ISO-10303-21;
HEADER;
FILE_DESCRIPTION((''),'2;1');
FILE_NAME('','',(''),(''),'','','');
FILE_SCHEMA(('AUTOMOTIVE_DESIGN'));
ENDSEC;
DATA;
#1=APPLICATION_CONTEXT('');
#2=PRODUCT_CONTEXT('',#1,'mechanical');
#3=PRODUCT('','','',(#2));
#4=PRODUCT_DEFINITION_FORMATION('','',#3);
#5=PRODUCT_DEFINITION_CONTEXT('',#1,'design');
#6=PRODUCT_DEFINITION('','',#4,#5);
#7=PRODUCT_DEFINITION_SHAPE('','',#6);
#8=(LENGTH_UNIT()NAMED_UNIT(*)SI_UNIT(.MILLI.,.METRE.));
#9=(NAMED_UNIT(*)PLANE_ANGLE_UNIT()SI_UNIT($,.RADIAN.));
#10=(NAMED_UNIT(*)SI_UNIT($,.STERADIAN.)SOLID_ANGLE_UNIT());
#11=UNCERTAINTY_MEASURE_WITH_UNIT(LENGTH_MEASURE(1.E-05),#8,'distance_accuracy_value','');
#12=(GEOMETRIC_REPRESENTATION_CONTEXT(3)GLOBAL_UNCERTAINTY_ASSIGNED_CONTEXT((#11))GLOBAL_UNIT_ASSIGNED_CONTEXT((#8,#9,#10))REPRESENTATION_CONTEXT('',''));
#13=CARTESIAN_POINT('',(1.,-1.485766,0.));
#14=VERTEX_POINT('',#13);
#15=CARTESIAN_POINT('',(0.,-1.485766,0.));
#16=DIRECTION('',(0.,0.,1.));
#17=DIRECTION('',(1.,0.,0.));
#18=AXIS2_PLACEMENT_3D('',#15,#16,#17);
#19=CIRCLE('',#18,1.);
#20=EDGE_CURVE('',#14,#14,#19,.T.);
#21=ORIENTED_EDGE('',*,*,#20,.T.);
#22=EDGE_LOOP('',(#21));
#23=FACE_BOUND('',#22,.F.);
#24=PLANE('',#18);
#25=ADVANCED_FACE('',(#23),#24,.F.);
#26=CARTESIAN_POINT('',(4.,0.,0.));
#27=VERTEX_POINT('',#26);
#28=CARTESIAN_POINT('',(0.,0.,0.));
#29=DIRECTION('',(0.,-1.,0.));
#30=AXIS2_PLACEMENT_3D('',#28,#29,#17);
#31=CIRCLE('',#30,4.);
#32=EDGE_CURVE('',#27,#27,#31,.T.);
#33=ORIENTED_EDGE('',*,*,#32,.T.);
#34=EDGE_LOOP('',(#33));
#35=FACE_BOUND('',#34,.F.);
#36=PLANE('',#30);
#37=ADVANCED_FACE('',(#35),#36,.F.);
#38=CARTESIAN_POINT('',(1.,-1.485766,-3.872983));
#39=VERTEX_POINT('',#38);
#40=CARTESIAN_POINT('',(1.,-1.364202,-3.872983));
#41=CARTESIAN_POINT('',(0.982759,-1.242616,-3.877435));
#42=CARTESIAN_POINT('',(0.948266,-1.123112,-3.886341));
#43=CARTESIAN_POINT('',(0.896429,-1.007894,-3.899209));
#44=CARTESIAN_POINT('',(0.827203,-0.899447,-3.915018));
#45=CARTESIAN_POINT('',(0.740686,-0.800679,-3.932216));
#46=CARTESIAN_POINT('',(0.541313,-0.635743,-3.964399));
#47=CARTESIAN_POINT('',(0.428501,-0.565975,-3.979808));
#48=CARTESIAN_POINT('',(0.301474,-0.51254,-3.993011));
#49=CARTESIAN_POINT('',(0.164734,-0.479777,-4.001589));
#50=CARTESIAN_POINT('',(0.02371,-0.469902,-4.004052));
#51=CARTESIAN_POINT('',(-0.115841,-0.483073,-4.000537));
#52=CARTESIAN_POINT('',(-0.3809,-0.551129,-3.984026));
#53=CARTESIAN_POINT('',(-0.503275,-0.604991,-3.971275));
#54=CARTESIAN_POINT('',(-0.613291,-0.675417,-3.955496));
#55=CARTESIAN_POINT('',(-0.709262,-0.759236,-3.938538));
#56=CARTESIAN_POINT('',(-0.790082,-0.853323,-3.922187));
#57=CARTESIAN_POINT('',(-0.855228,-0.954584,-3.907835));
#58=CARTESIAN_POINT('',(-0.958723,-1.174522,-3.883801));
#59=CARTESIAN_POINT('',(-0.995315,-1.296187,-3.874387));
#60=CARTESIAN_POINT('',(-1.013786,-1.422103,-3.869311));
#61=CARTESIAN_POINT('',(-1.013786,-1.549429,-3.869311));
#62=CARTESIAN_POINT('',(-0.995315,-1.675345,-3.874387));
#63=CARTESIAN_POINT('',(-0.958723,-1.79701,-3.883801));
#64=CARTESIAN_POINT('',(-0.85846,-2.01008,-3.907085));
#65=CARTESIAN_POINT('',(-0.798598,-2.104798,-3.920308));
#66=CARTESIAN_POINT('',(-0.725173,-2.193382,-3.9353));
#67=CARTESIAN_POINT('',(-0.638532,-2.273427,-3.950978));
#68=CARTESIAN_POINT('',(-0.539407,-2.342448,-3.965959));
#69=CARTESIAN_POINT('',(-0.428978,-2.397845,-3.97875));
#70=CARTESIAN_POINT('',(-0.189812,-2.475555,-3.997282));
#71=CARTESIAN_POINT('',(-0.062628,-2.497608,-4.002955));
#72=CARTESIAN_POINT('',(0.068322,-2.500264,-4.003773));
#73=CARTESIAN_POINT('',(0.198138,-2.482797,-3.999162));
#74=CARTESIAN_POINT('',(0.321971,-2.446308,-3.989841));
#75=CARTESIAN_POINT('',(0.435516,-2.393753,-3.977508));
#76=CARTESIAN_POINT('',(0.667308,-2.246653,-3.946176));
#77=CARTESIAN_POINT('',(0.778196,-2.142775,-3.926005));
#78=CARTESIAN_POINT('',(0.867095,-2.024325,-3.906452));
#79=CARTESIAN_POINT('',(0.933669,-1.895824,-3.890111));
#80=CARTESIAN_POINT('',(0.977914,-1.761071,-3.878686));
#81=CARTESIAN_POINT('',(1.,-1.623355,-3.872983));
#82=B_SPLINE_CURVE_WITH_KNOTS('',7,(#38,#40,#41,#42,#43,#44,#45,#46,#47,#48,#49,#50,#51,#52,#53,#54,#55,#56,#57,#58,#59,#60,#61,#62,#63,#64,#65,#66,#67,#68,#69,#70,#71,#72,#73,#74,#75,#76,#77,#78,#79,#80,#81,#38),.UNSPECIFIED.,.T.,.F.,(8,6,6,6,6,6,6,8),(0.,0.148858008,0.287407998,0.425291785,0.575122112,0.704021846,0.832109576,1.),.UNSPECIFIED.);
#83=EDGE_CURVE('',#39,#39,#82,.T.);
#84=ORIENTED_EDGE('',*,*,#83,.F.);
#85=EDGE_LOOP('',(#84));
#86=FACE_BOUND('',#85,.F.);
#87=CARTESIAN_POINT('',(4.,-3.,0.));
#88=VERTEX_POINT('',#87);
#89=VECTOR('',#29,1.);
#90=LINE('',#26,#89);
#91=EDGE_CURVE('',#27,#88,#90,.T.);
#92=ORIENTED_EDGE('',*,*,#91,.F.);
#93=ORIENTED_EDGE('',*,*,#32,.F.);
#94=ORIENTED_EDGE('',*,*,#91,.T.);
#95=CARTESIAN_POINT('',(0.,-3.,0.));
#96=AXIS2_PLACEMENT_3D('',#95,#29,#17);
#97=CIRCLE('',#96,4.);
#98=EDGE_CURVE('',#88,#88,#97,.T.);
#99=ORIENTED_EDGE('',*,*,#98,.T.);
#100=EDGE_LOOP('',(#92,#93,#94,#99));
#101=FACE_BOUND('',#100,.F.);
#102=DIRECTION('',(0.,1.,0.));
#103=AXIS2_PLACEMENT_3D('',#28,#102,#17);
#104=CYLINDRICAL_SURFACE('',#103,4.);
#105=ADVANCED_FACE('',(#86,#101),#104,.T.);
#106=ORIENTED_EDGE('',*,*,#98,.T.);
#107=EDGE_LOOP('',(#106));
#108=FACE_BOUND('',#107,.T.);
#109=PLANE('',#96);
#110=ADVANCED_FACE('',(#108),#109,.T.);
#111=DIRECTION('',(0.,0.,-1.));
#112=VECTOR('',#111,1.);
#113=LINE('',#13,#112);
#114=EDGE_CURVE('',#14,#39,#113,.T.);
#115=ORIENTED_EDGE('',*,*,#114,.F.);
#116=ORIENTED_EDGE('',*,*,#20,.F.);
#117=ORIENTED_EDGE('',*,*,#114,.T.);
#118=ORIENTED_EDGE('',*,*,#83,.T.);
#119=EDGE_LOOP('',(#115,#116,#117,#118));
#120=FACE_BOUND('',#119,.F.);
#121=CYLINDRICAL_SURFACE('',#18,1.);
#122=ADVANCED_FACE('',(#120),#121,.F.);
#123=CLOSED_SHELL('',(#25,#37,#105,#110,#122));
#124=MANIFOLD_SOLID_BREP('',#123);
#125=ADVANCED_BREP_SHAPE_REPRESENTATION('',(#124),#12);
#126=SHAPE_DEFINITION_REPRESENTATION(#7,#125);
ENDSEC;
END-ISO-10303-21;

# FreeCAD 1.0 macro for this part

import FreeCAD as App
import Part
import Sketcher

V = App.Vector

doc = App.newDocument("Part")
body = doc.addObject("PartDesign::Body", "Body")

# Sketch on XZ plane
sketch1 = body.newObject("Sketcher::SketchObject", "Sketch")
sketch1.AttachmentSupport = (doc.getObject("XZ_Plane"), [""])
sketch1.MapMode = "FlatFace"
sketch1.addGeometry(Part.Circle(V(0, 0, 0), V(0, 0, 1), 4), False)
sketch1.addConstraint(Sketcher.Constraint("Coincident", 0, 3, -1, 1))
sketch1.addConstraint(Sketcher.Constraint("Diameter", 0, 8.0))
pad1 = body.newObject("PartDesign::Pad", "Pad")
pad1.Profile = sketch1
pad1.Length = 3

# Sketch on XY plane
sketch2 = body.newObject("Sketcher::SketchObject", "Sketch001")
sketch2.AttachmentSupport = (doc.getObject("XY_Plane"), [""])
sketch2.MapMode = "FlatFace"
sketch2.addGeometry(Part.Circle(V(0, -1.5, 0), V(0, 0, 1), 1), False)
sketch2.addConstraint(Sketcher.Constraint("PointOnObject", 0, 3, -2))
sketch2.addConstraint(Sketcher.Constraint("Diameter", 0, 2.0))
sketch2.addConstraint(Sketcher.Constraint("DistanceY", 0, 3, -1, 1, 1.485766))
pocket1 = body.newObject("PartDesign::Pocket", "Pocket")
pocket1.Profile = sketch2
pocket1.Length = 5

doc.recompute()
